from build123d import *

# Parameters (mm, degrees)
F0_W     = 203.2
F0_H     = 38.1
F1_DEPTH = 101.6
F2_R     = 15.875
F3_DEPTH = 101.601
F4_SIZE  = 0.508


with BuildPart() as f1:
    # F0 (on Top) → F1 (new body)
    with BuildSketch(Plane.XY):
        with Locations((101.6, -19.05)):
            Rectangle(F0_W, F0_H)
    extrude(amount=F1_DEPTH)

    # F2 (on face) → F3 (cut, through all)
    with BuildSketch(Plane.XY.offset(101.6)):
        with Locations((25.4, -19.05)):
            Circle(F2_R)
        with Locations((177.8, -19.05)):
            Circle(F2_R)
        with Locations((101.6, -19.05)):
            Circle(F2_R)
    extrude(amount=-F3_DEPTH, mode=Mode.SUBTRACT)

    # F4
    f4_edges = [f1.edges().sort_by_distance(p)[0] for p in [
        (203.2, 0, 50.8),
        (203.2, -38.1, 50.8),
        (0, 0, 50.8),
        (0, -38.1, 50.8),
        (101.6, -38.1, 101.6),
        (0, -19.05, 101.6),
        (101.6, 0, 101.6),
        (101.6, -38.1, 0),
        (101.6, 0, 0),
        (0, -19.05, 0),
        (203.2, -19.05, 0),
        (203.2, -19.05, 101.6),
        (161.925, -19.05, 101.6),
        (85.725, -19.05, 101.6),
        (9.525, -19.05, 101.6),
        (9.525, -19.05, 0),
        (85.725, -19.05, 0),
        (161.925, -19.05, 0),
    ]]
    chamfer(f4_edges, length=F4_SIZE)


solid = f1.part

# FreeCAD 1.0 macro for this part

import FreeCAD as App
import Part
import Sketcher

V = App.Vector
Q = App.Units.Quantity

doc = App.newDocument("Part")
body = doc.addObject("PartDesign::Body", "Body")

# Sketch on XY plane
sketch1 = body.newObject("Sketcher::SketchObject", "Sketch")
sketch1.AttachmentSupport = (doc.getObject("XY_Plane"), [""])
sketch1.MapMode = "FlatFace"
sketch1.addGeometry(Part.LineSegment(V(0, 0, 0), V(0, -38.1, 0)), False)
sketch1.addGeometry(Part.LineSegment(V(0, -38.1, 0), V(203.2, -38.1, 0)), False)
sketch1.addGeometry(Part.LineSegment(V(203.2, -38.1, 0), V(203.2, 0, 0)), False)
sketch1.addGeometry(Part.LineSegment(V(203.2, 0, 0), V(0, 0, 0)), False)
sketch1.addConstraint(Sketcher.Constraint("Coincident", 0, 2, 1, 1))
sketch1.addConstraint(Sketcher.Constraint("Coincident", 1, 2, 2, 1))
sketch1.addConstraint(Sketcher.Constraint("Coincident", 2, 2, 3, 1))
sketch1.addConstraint(Sketcher.Constraint("Coincident", 3, 2, 0, 1))
sketch1.addConstraint(Sketcher.Constraint("Vertical", 0))
sketch1.addConstraint(Sketcher.Constraint("Horizontal", 1))
sketch1.addConstraint(Sketcher.Constraint("Vertical", 2))
sketch1.addConstraint(Sketcher.Constraint("Horizontal", 3))
sketch1.addConstraint(Sketcher.Constraint("Coincident", 3, 2, -1, 1))
sketch1.addConstraint(Sketcher.Constraint("DistanceX", 1, 1, 1, 2, Q("8 in")))
sketch1.addConstraint(Sketcher.Constraint("DistanceY", 0, 2, 0, 1, Q("1.5 in")))
pad1 = body.newObject("PartDesign::Pad", "Pad")
pad1.Profile = sketch1
pad1.Length = Q("4 in")

# Sketch on XY plane
sketch2 = body.newObject("Sketcher::SketchObject", "Sketch001")
sketch2.AttachmentSupport = (doc.getObject("XY_Plane"), [""])
sketch2.MapMode = "FlatFace"
sketch2.AttachmentOffset = App.Placement(V(0, 0, 4 * 25.4), App.Rotation())
sketch2.addGeometry(Part.Circle(V(25.4, -19.05, 0), V(0, 0, 1), 15.875), False)
sketch2.addGeometry(Part.Circle(V(177.8, -19.05, 0), V(0, 0, 1), 15.875), False)
sketch2.addGeometry(Part.Circle(V(101.6, -19.05, 0), V(0, 0, 1), 15.875), False)
sketch2.addConstraint(Sketcher.Constraint("Equal", 0, 1))
sketch2.addConstraint(Sketcher.Constraint("Equal", 1, 2))
sketch2.addConstraint(Sketcher.Constraint("Horizontal", 0, 3, 1, 3))
sketch2.addConstraint(Sketcher.Constraint("Horizontal", 1, 3, 2, 3))
sketch2.addConstraint(Sketcher.Constraint("Diameter", 0, Q("1.25 in")))
sketch2.addConstraint(Sketcher.Constraint("DistanceX", -1, 1, 0, 3, Q("1 in")))
sketch2.addConstraint(Sketcher.Constraint("DistanceX", -1, 1, 1, 3, Q("7 in")))
sketch2.addConstraint(Sketcher.Constraint("DistanceX", -1, 1, 2, 3, Q("4 in")))
sketch2.addConstraint(Sketcher.Constraint("DistanceY", 0, 3, -1, 1, Q("0.75 in")))
pocket1 = body.newObject("PartDesign::Pocket", "Pocket")
pocket1.Profile = sketch2
pocket1.Type = "ThroughAll"
doc.recompute()

chamfer = body.newObject("PartDesign::Chamfer", "Chamfer")
chamfer.Base = (pocket1, ["Edge1"])
chamfer.UseAllEdges = True
chamfer.Size = Q("0.02 in")

doc.recompute()
